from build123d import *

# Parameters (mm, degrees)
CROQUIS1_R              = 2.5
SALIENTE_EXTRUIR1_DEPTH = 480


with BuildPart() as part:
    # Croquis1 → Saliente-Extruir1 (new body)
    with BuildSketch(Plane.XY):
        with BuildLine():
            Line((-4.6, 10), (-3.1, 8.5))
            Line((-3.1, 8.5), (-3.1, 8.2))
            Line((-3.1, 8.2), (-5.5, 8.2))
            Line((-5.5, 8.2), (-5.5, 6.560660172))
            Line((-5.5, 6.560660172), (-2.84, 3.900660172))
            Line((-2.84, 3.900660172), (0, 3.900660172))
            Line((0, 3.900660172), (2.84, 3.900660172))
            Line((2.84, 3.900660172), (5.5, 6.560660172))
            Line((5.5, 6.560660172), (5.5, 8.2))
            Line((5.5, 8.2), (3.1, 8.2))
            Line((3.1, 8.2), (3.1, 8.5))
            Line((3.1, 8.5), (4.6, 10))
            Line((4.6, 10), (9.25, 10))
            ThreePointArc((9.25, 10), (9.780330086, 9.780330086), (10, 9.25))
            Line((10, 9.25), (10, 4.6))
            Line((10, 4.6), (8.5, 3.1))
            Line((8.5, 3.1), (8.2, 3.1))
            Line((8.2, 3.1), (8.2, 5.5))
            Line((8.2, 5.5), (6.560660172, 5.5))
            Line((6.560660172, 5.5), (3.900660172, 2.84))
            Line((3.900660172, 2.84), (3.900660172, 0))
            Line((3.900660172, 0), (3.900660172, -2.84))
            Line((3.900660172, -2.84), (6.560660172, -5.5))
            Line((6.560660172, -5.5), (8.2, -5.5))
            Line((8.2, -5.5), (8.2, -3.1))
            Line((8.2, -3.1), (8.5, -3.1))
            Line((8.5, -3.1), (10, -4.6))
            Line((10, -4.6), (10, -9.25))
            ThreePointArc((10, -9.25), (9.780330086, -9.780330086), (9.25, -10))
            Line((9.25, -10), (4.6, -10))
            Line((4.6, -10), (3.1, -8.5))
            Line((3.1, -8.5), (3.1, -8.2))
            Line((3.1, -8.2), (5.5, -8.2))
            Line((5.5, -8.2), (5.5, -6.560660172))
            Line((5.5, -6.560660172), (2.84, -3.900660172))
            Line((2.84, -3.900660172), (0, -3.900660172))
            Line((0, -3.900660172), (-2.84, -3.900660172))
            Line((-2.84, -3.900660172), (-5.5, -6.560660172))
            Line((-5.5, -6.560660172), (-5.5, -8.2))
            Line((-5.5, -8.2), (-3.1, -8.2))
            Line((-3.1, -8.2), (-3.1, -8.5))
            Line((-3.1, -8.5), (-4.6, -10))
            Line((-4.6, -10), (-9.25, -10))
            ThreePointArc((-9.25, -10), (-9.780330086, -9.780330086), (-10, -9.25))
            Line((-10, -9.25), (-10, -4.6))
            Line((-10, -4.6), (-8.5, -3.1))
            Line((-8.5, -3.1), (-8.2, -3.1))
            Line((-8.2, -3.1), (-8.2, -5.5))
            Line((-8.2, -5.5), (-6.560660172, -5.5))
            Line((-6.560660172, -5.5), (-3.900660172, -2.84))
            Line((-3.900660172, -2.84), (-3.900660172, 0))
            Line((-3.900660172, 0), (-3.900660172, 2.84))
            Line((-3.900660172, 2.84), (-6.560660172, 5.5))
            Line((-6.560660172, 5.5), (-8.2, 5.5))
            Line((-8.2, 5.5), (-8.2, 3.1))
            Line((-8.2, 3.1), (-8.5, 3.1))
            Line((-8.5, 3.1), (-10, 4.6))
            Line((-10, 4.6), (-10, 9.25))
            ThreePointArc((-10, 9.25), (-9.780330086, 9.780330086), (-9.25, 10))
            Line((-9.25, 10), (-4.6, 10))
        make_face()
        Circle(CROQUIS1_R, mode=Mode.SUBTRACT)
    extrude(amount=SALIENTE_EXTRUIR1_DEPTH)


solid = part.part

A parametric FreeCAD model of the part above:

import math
import FreeCAD as App
import Part
import Sketcher

V = App.Vector

doc = App.newDocument("Part")
body = doc.addObject("PartDesign::Body", "Body")

# Sketch on XY plane
sketch1 = body.newObject("Sketcher::SketchObject", "Sketch")
sketch1.AttachmentSupport = (doc.getObject("XY_Plane"), [""])
sketch1.MapMode = "FlatFace"
sketch1.addGeometry(Part.LineSegment(V(-3.1, 8.5, 0), V(-4.6, 10, 0)), False)
sketch1.addGeometry(Part.LineSegment(V(-4.6, 10, 0), V(-9.25, 10, 0)), False)
sketch1.addGeometry(Part.ArcOfCircle(Part.Circle(V(-9.25, 9.25, 0), V(0, 0, 1), 0.75), math.radians(90), math.radians(180)), False)
sketch1.addGeometry(Part.LineSegment(V(-10, 9.25, 0), V(-10, 4.6, 0)), False)
sketch1.addGeometry(Part.LineSegment(V(-10, 4.6, 0), V(-8.5, 3.1, 0)), False)
sketch1.addGeometry(Part.LineSegment(V(-8.5, 3.1, 0), V(-8.2, 3.1, 0)), False)
sketch1.addGeometry(Part.LineSegment(V(-8.2, 3.1, 0), V(-8.2, 5.5, 0)), False)
sketch1.addGeometry(Part.LineSegment(V(-8.2, 5.5, 0), V(-6.56066, 5.5, 0)), False)
sketch1.addGeometry(Part.LineSegment(V(-6.56066, 5.5, 0), V(-3.90066, 2.84, 0)), False)
sketch1.addGeometry(Part.LineSegment(V(-3.90066, 2.84, 0), V(-3.90066, -2.84, 0)), False)
sketch1.addGeometry(Part.LineSegment(V(-3.90066, -2.84, 0), V(-6.56066, -5.5, 0)), False)
sketch1.addGeometry(Part.LineSegment(V(-6.56066, -5.5, 0), V(-8.2, -5.5, 0)), False)
sketch1.addGeometry(Part.LineSegment(V(-8.2, -5.5, 0), V(-8.2, -3.1, 0)), False)
sketch1.addGeometry(Part.LineSegment(V(-8.2, -3.1, 0), V(-8.5, -3.1, 0)), False)
sketch1.addGeometry(Part.LineSegment(V(-8.5, -3.1, 0), V(-10, -4.6, 0)), False)
sketch1.addGeometry(Part.LineSegment(V(-10, -4.6, 0), V(-10, -9.25, 0)), False)
sketch1.addGeometry(Part.ArcOfCircle(Part.Circle(V(-9.25, -9.25, 0), V(0, 0, 1), 0.75), math.radians(180), math.radians(270)), False)
sketch1.addGeometry(Part.LineSegment(V(-9.25, -10, 0), V(-4.6, -10, 0)), False)
sketch1.addGeometry(Part.LineSegment(V(-4.6, -10, 0), V(-3.1, -8.5, 0)), False)
sketch1.addGeometry(Part.LineSegment(V(-3.1, -8.5, 0), V(-3.1, -8.2, 0)), False)
sketch1.addGeometry(Part.LineSegment(V(-3.1, -8.2, 0), V(-5.5, -8.2, 0)), False)
sketch1.addGeometry(Part.LineSegment(V(-5.5, -8.2, 0), V(-5.5, -6.56066, 0)), False)
sketch1.addGeometry(Part.LineSegment(V(-5.5, -6.56066, 0), V(-2.84, -3.90066, 0)), False)
sketch1.addGeometry(Part.LineSegment(V(-2.84, -3.90066, 0), V(2.84, -3.90066, 0)), False)
sketch1.addGeometry(Part.LineSegment(V(2.84, -3.90066, 0), V(5.5, -6.56066, 0)), False)
sketch1.addGeometry(Part.LineSegment(V(5.5, -6.56066, 0), V(5.5, -8.2, 0)), False)
sketch1.addGeometry(Part.LineSegment(V(5.5, -8.2, 0), V(3.1, -8.2, 0)), False)
sketch1.addGeometry(Part.LineSegment(V(3.1, -8.2, 0), V(3.1, -8.5, 0)), False)
sketch1.addGeometry(Part.LineSegment(V(3.1, -8.5, 0), V(4.6, -10, 0)), False)
sketch1.addGeometry(Part.LineSegment(V(4.6, -10, 0), V(9.25, -10, 0)), False)
sketch1.addGeometry(Part.ArcOfCircle(Part.Circle(V(9.25, -9.25, 0), V(0, 0, 1), 0.75), math.radians(-90), math.radians(0)), False)
sketch1.addGeometry(Part.LineSegment(V(10, -9.25, 0), V(10, -4.6, 0)), False)
sketch1.addGeometry(Part.LineSegment(V(10, -4.6, 0), V(8.5, -3.1, 0)), False)
sketch1.addGeometry(Part.LineSegment(V(8.5, -3.1, 0), V(8.2, -3.1, 0)), False)
sketch1.addGeometry(Part.LineSegment(V(8.2, -3.1, 0), V(8.2, -5.5, 0)), False)
sketch1.addGeometry(Part.LineSegment(V(8.2, -5.5, 0), V(6.56066, -5.5, 0)), False)
sketch1.addGeometry(Part.LineSegment(V(6.56066, -5.5, 0), V(3.90066, -2.84, 0)), False)
sketch1.addGeometry(Part.LineSegment(V(3.90066, -2.84, 0), V(3.90066, 2.84, 0)), False)
sketch1.addGeometry(Part.LineSegment(V(3.90066, 2.84, 0), V(6.56066, 5.5, 0)), False)
sketch1.addGeometry(Part.LineSegment(V(6.56066, 5.5, 0), V(8.2, 5.5, 0)), False)
sketch1.addGeometry(Part.LineSegment(V(8.2, 5.5, 0), V(8.2, 3.1, 0)), False)
sketch1.addGeometry(Part.LineSegment(V(8.2, 3.1, 0), V(8.5, 3.1, 0)), False)
sketch1.addGeometry(Part.LineSegment(V(8.5, 3.1, 0), V(10, 4.6, 0)), False)
sketch1.addGeometry(Part.LineSegment(V(10, 4.6, 0), V(10, 9.25, 0)), False)
sketch1.addGeometry(Part.ArcOfCircle(Part.Circle(V(9.25, 9.25, 0), V(0, 0, 1), 0.75), math.radians(0), math.radians(90)), False)
sketch1.addGeometry(Part.LineSegment(V(9.25, 10, 0), V(4.6, 10, 0)), False)
sketch1.addGeometry(Part.LineSegment(V(4.6, 10, 0), V(3.1, 8.5, 0)), False)
sketch1.addGeometry(Part.LineSegment(V(3.1, 8.5, 0), V(3.1, 8.2, 0)), False)
sketch1.addGeometry(Part.LineSegment(V(3.1, 8.2, 0), V(5.5, 8.2, 0)), False)
sketch1.addGeometry(Part.LineSegment(V(5.5, 8.2, 0), V(5.5, 6.56066, 0)), False)
sketch1.addGeometry(Part.LineSegment(V(5.5, 6.56066, 0), V(2.84, 3.90066, 0)), False)
sketch1.addGeometry(Part.LineSegment(V(2.84, 3.90066, 0), V(-2.84, 3.90066, 0)), False)
sketch1.addGeometry(Part.LineSegment(V(-2.84, 3.90066, 0), V(-5.5, 6.56066, 0)), False)
sketch1.addGeometry(Part.LineSegment(V(-5.5, 6.56066, 0), V(-5.5, 8.2, 0)), False)
sketch1.addGeometry(Part.LineSegment(V(-5.5, 8.2, 0), V(-3.1, 8.2, 0)), False)
sketch1.addGeometry(Part.LineSegment(V(-3.1, 8.2, 0), V(-3.1, 8.5, 0)), False)
sketch1.addGeometry(Part.Circle(V(0, 0, 0), V(0, 0, 1), 2.5), False)
sketch1.addConstraint(Sketcher.Constraint("Coincident", 0, 2, 1, 1))
sketch1.addConstraint(Sketcher.Constraint("Tangent", 1, 2, 2, 1))
sketch1.addConstraint(Sketcher.Constraint("Tangent", 2, 2, 3, 1))
sketch1.addConstraint(Sketcher.Constraint("Coincident", 3, 2, 4, 1))
sketch1.addConstraint(Sketcher.Constraint("Coincident", 4, 2, 5, 1))
sketch1.addConstraint(Sketcher.Constraint("Coincident", 5, 2, 6, 1))
sketch1.addConstraint(Sketcher.Constraint("Coincident", 6, 2, 7, 1))
sketch1.addConstraint(Sketcher.Constraint("Coincident", 7, 2, 8, 1))
sketch1.addConstraint(Sketcher.Constraint("Coincident", 8, 2, 9, 1))
sketch1.addConstraint(Sketcher.Constraint("Coincident", 9, 2, 10, 1))
sketch1.addConstraint(Sketcher.Constraint("Coincident", 10, 2, 11, 1))
sketch1.addConstraint(Sketcher.Constraint("Coincident", 11, 2, 12, 1))
sketch1.addConstraint(Sketcher.Constraint("Coincident", 12, 2, 13, 1))
sketch1.addConstraint(Sketcher.Constraint("Coincident", 13, 2, 14, 1))
sketch1.addConstraint(Sketcher.Constraint("Coincident", 14, 2, 15, 1))
sketch1.addConstraint(Sketcher.Constraint("Tangent", 15, 2, 16, 1))
sketch1.addConstraint(Sketcher.Constraint("Tangent", 16, 2, 17, 1))
sketch1.addConstraint(Sketcher.Constraint("Coincident", 17, 2, 18, 1))
sketch1.addConstraint(Sketcher.Constraint("Coincident", 18, 2, 19, 1))
sketch1.addConstraint(Sketcher.Constraint("Coincident", 19, 2, 20, 1))
sketch1.addConstraint(Sketcher.Constraint("Coincident", 20, 2, 21, 1))
sketch1.addConstraint(Sketcher.Constraint("Coincident", 21, 2, 22, 1))
sketch1.addConstraint(Sketcher.Constraint("Coincident", 22, 2, 23, 1))
sketch1.addConstraint(Sketcher.Constraint("Coincident", 23, 2, 24, 1))
sketch1.addConstraint(Sketcher.Constraint("Coincident", 24, 2, 25, 1))
sketch1.addConstraint(Sketcher.Constraint("Coincident", 25, 2, 26, 1))
sketch1.addConstraint(Sketcher.Constraint("Coincident", 26, 2, 27, 1))
sketch1.addConstraint(Sketcher.Constraint("Coincident", 27, 2, 28, 1))
sketch1.addConstraint(Sketcher.Constraint("Coincident", 28, 2, 29, 1))
sketch1.addConstraint(Sketcher.Constraint("Tangent", 29, 2, 30, 1))
sketch1.addConstraint(Sketcher.Constraint("Tangent", 30, 2, 31, 1))
sketch1.addConstraint(Sketcher.Constraint("Coincident", 31, 2, 32, 1))
sketch1.addConstraint(Sketcher.Constraint("Coincident", 32, 2, 33, 1))
sketch1.addConstraint(Sketcher.Constraint("Coincident", 33, 2, 34, 1))
sketch1.addConstraint(Sketcher.Constraint("Coincident", 34, 2, 35, 1))
sketch1.addConstraint(Sketcher.Constraint("Coincident", 35, 2, 36, 1))
sketch1.addConstraint(Sketcher.Constraint("Coincident", 36, 2, 37, 1))
sketch1.addConstraint(Sketcher.Constraint("Coincident", 37, 2, 38, 1))
sketch1.addConstraint(Sketcher.Constraint("Coincident", 38, 2, 39, 1))
sketch1.addConstraint(Sketcher.Constraint("Coincident", 39, 2, 40, 1))
sketch1.addConstraint(Sketcher.Constraint("Coincident", 40, 2, 41, 1))
sketch1.addConstraint(Sketcher.Constraint("Coincident", 41, 2, 42, 1))
sketch1.addConstraint(Sketcher.Constraint("Coincident", 42, 2, 43, 1))
sketch1.addConstraint(Sketcher.Constraint("Tangent", 43, 2, 44, 1))
sketch1.addConstraint(Sketcher.Constraint("Tangent", 44, 2, 45, 1))
sketch1.addConstraint(Sketcher.Constraint("Coincident", 45, 2, 46, 1))
sketch1.addConstraint(Sketcher.Constraint("Coincident", 46, 2, 47, 1))
sketch1.addConstraint(Sketcher.Constraint("Coincident", 47, 2, 48, 1))
sketch1.addConstraint(Sketcher.Constraint("Coincident", 48, 2, 49, 1))
sketch1.addConstraint(Sketcher.Constraint("Coincident", 49, 2, 50, 1))
sketch1.addConstraint(Sketcher.Constraint("Coincident", 50, 2, 51, 1))
sketch1.addConstraint(Sketcher.Constraint("Coincident", 51, 2, 52, 1))
sketch1.addConstraint(Sketcher.Constraint("Coincident", 52, 2, 53, 1))
sketch1.addConstraint(Sketcher.Constraint("Coincident", 53, 2, 54, 1))
sketch1.addConstraint(Sketcher.Constraint("Coincident", 54, 2, 55, 1))
sketch1.addConstraint(Sketcher.Constraint("Coincident", 55, 2, 0, 1))
sketch1.addConstraint(Sketcher.Constraint("Horizontal", 1))
sketch1.addConstraint(Sketcher.Constraint("Vertical", 3))
sketch1.addConstraint(Sketcher.Constraint("Horizontal", 5))
sketch1.addConstraint(Sketcher.Constraint("Vertical", 6))
sketch1.addConstraint(Sketcher.Constraint("Horizontal", 7))
sketch1.addConstraint(Sketcher.Constraint("Vertical", 9))
sketch1.addConstraint(Sketcher.Constraint("Horizontal", 11))
sketch1.addConstraint(Sketcher.Constraint("Vertical", 12))
sketch1.addConstraint(Sketcher.Constraint("Horizontal", 13))
sketch1.addConstraint(Sketcher.Constraint("Vertical", 15))
sketch1.addConstraint(Sketcher.Constraint("Horizontal", 17))
sketch1.addConstraint(Sketcher.Constraint("Vertical", 19))
sketch1.addConstraint(Sketcher.Constraint("Horizontal", 20))
sketch1.addConstraint(Sketcher.Constraint("Vertical", 21))
sketch1.addConstraint(Sketcher.Constraint("Horizontal", 23))
sketch1.addConstraint(Sketcher.Constraint("Vertical", 25))
sketch1.addConstraint(Sketcher.Constraint("Horizontal", 26))
sketch1.addConstraint(Sketcher.Constraint("Vertical", 27))
sketch1.addConstraint(Sketcher.Constraint("Horizontal", 29))
sketch1.addConstraint(Sketcher.Constraint("Vertical", 31))
sketch1.addConstraint(Sketcher.Constraint("Horizontal", 33))
sketch1.addConstraint(Sketcher.Constraint("Vertical", 34))
sketch1.addConstraint(Sketcher.Constraint("Horizontal", 35))
sketch1.addConstraint(Sketcher.Constraint("Vertical", 37))
sketch1.addConstraint(Sketcher.Constraint("Horizontal", 39))
sketch1.addConstraint(Sketcher.Constraint("Vertical", 40))
sketch1.addConstraint(Sketcher.Constraint("Horizontal", 41))
sketch1.addConstraint(Sketcher.Constraint("Vertical", 43))
sketch1.addConstraint(Sketcher.Constraint("Horizontal", 45))
sketch1.addConstraint(Sketcher.Constraint("Vertical", 47))
sketch1.addConstraint(Sketcher.Constraint("Horizontal", 48))
sketch1.addConstraint(Sketcher.Constraint("Vertical", 49))
sketch1.addConstraint(Sketcher.Constraint("Horizontal", 51))
sketch1.addConstraint(Sketcher.Constraint("Vertical", 53))
sketch1.addConstraint(Sketcher.Constraint("Horizontal", 54))
sketch1.addConstraint(Sketcher.Constraint("Vertical", 55))
sketch1.addConstraint(Sketcher.Constraint("Coincident", 56, 3, -1, 1))
sketch1.addConstraint(Sketcher.Constraint("Equal", 2, 16))
sketch1.addConstraint(Sketcher.Constraint("Equal", 16, 30))
sketch1.addConstraint(Sketcher.Constraint("Equal", 30, 44))
sketch1.addConstraint(Sketcher.Constraint("Symmetric", 2, 3, 30, 3, -1, 1))
sketch1.addConstraint(Sketcher.Constraint("Symmetric", 16, 3, 44, 3, -1, 1))
sketch1.addConstraint(Sketcher.Constraint("Symmetric", 4, 2, 32, 2, -1, 1))
sketch1.addConstraint(Sketcher.Constraint("Symmetric", 6, 2, 34, 2, -1, 1))
sketch1.addConstraint(Sketcher.Constraint("Symmetric", 8, 2, 36, 2, -1, 1))
sketch1.addConstraint(Sketcher.Constraint("Symmetric", 10, 2, 38, 2, -1, 1))
sketch1.addConstraint(Sketcher.Constraint("Symmetric", 12, 2, 40, 2, -1, 1))
sketch1.addConstraint(Sketcher.Constraint("Symmetric", 18, 2, 46, 2, -1, 1))
sketch1.addConstraint(Sketcher.Constraint("Symmetric", 20, 2, 48, 2, -1, 1))
sketch1.addConstraint(Sketcher.Constraint("Symmetric", 22, 2, 50, 2, -1, 1))
sketch1.addConstraint(Sketcher.Constraint("Symmetric", 24, 2, 52, 2, -1, 1))
sketch1.addConstraint(Sketcher.Constraint("Symmetric", 26, 2, 54, 2, -1, 1))
sketch1.addConstraint(Sketcher.Constraint("Symmetric", 16, 3, 30, 3, -2))
sketch1.addConstraint(Sketcher.Constraint("Symmetric", 21, 2, 24, 2, -2))
sketch1.addConstraint(Sketcher.Constraint("Symmetric", 19, 2, 26, 2, -2))
sketch1.addConstraint(Sketcher.Constraint("Symmetric", 13, 2, 32, 2, -2))
sketch1.addConstraint(Sketcher.Constraint("Symmetric", 11, 2, 34, 2, -2))
sketch1.addConstraint(Sketcher.Constraint("Parallel", 0, 4))
sketch1.addConstraint(Sketcher.Constraint("Parallel", 4, 8))
sketch1.addConstraint(Sketcher.Constraint("Perpendicular", 8, 10))
sketch1.addConstraint(Sketcher.Constraint("Parallel", 10, 14))
sketch1.addConstraint(Sketcher.Constraint("Parallel", 14, 18))
sketch1.addConstraint(Sketcher.Constraint("Parallel", 18, 22))
sketch1.addConstraint(Sketcher.Constraint("Perpendicular", 22, 24))
sketch1.addConstraint(Sketcher.Constraint("Parallel", 24, 28))
sketch1.addConstraint(Sketcher.Constraint("Parallel", 28, 32))
sketch1.addConstraint(Sketcher.Constraint("Parallel", 32, 36))
sketch1.addConstraint(Sketcher.Constraint("Perpendicular", 36, 38))
sketch1.addConstraint(Sketcher.Constraint("Parallel", 38, 42))
sketch1.addConstraint(Sketcher.Constraint("Parallel", 42, 46))
sketch1.addConstraint(Sketcher.Constraint("Parallel", 46, 50))
sketch1.addConstraint(Sketcher.Constraint("Perpendicular", 50, 52))
sketch1.addConstraint(Sketcher.Constraint("Horizontal", 18, 2, 27, 2))
sketch1.addConstraint(Sketcher.Constraint("Horizontal", 14, 2, 31, 2))
sketch1.addConstraint(Sketcher.Constraint("Horizontal", 9, 2, 36, 2))
sketch1.addConstraint(Sketcher.Constraint("Horizontal", 3, 2, 42, 2))
sketch1.addConstraint(Sketcher.Constraint("Horizontal", 46, 2, 55, 2))
sketch1.addConstraint(Sketcher.Constraint("Equal", 45, 3))
sketch1.addConstraint(Sketcher.Constraint("Equal", 54, 6))
sketch1.addConstraint(Sketcher.Constraint("Equal", 51, 9))
sketch1.addConstraint(Sketcher.Constraint("Equal", 41, 19))
sketch1.addConstraint(Sketcher.Constraint("Equal", 39, 21))
sketch1.addConstraint(Sketcher.Constraint("Equal", 0, 4))
sketch1.addConstraint(Sketcher.Constraint("Equal", 10, 22))
sketch1.addConstraint(Sketcher.Constraint("Diameter", 56, 5.0))
sketch1.addConstraint(Sketcher.Constraint("Radius", 2, 0.75))
sketch1.addConstraint(Sketcher.Constraint("DistanceX", 5, 1, 5, 2, 0.3))
sketch1.addConstraint(Sketcher.Constraint("DistanceX", 20, 2, 20, 1, 2.4))
sketch1.addConstraint(Sketcher.Constraint("DistanceY", -1, 1, 0, 2, 10.0))
sketch1.addConstraint(Sketcher.Constraint("DistanceX", 1, 2, 1, 1, 4.65))
sketch1.addConstraint(Sketcher.Constraint("DistanceX", 23, 1, 23, 2, 5.68))
sketch1.addConstraint(Sketcher.Constraint("DistanceX", 4, 2, -1, 1, 8.5))
sketch1.addConstraint(Sketcher.Constraint("DistanceX", 7, 1, 7, 2, 1.63934))
pad1 = body.newObject("PartDesign::Pad", "Pad")
pad1.Profile = sketch1
pad1.Length = 480

doc.recompute()
